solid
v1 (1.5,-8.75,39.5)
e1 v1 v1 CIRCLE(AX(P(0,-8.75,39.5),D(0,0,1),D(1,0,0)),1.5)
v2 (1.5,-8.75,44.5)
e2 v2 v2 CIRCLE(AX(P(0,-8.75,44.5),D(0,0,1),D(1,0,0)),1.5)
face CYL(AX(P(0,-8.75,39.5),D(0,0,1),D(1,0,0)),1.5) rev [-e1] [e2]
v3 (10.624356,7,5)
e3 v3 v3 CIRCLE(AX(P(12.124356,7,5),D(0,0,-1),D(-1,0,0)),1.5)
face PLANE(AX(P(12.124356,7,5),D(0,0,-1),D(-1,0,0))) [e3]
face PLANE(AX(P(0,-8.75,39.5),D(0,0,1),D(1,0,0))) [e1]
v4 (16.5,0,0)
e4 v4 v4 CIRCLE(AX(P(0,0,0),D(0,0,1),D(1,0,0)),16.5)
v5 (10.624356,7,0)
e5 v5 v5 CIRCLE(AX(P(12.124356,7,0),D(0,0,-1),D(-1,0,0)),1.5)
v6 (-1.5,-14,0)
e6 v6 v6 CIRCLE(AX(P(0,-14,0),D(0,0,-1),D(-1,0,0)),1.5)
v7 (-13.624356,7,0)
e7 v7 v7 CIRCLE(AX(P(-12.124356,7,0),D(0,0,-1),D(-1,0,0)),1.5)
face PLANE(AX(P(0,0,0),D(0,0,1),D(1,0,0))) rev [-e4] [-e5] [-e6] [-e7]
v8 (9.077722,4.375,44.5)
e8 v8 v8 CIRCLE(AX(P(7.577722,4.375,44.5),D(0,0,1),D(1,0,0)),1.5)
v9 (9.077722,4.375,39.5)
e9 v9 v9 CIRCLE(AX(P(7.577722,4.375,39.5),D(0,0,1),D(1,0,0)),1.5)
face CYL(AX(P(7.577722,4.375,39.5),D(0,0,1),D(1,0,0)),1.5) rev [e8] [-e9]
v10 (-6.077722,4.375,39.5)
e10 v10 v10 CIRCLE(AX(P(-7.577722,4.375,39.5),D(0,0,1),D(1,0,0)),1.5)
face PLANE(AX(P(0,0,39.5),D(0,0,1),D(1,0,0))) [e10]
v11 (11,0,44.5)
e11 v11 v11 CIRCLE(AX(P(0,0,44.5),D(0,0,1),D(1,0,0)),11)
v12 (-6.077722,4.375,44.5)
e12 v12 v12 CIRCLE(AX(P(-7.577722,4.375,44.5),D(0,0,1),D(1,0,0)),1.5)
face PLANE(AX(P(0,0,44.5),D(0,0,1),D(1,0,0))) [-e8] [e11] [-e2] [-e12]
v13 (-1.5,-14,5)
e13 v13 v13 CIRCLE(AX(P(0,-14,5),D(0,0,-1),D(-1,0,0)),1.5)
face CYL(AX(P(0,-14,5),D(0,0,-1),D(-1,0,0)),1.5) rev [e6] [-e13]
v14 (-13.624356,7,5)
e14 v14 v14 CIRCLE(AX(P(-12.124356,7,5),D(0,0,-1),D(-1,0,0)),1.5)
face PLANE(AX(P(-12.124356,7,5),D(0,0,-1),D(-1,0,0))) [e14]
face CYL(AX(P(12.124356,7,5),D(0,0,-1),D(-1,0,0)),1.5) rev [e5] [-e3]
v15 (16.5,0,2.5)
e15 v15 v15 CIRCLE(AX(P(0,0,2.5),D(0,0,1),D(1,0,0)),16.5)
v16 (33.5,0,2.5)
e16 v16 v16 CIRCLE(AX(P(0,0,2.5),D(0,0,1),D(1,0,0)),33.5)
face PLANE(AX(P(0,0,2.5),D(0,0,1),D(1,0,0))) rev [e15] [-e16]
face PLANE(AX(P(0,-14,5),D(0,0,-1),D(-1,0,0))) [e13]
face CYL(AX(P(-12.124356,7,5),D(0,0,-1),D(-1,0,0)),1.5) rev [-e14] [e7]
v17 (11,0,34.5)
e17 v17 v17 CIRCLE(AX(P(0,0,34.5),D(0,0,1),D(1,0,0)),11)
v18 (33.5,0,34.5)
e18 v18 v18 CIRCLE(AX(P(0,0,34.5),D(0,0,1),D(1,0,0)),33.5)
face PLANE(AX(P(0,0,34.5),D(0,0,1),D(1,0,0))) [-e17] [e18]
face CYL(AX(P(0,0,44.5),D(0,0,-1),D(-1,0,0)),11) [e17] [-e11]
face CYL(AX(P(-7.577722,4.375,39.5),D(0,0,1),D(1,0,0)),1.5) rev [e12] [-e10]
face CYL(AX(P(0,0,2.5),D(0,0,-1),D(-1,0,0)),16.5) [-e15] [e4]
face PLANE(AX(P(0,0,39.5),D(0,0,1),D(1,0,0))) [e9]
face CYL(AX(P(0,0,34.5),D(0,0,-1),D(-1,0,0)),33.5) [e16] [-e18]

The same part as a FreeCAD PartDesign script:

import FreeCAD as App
import Part
import Sketcher

V = App.Vector

doc = App.newDocument("Part")
params = doc.addObject("Spreadsheet::Sheet", "Params")
for row, (alias, value) in enumerate([
    ("sketch1_diameter", "33 mm"),
    ("pad1_length", "2.5 mm"),
    ("sketch2_diameter", "67 mm"),
    ("pad2_length", "32 mm"),
    ("sketch3_diameter", "22 mm"),
    ("pad3_length", "10 mm"),
    ("sketch4_diameter", "3 mm"),
    ("pocket1_length", "5 mm"),
    ("sketch5_diameter", "3 mm"),
    ("pocket2_length", "5 mm"),
], start=1):
    params.set(f"A{row}", alias)
    params.set(f"B{row}", "=" + value)
    params.setAlias(f"B{row}", alias)

body = doc.addObject("PartDesign::Body", "Body")

# Sketch on XY plane
sketch1 = body.newObject("Sketcher::SketchObject", "Sketch")
sketch1.AttachmentSupport = (doc.getObject("XY_Plane"), [""])
sketch1.MapMode = "FlatFace"
sketch1.addGeometry(Part.Circle(V(0, 0, 0), V(0, 0, 1), 16), False)
sketch1.addConstraint([
    Sketcher.Constraint("Coincident", 0, 3, -1, 1),
    Sketcher.Constraint("Diameter", 0, 33.0),
])
sketch1.setExpression("Constraints[1]", "Params.sketch1_diameter")
pad1 = body.newObject("PartDesign::Pad", "Pad")
pad1.Profile = sketch1
pad1.setExpression("Length", "Params.pad1_length")

# Sketch on XY plane
sketch2 = body.newObject("Sketcher::SketchObject", "Sketch001")
sketch2.AttachmentSupport = (doc.getObject("XY_Plane"), [""])
sketch2.MapMode = "FlatFace"
sketch2.AttachmentOffset = App.Placement(V(0, 0, 2.5), App.Rotation())
sketch2.addGeometry(Part.Circle(V(0, 0, 0), V(0, 0, 1), 34), False)
sketch2.addConstraint([
    Sketcher.Constraint("Coincident", 0, 3, -1, 1),
    Sketcher.Constraint("Diameter", 0, 67.0),
])
sketch2.setExpression("Constraints[1]", "Params.sketch2_diameter")
pad2 = body.newObject("PartDesign::Pad", "Pad001")
pad2.Profile = sketch2
pad2.setExpression("Length", "Params.pad2_length")

# Sketch on XY plane
sketch3 = body.newObject("Sketcher::SketchObject", "Sketch002")
sketch3.AttachmentSupport = (doc.getObject("XY_Plane"), [""])
sketch3.MapMode = "FlatFace"
sketch3.AttachmentOffset = App.Placement(V(0, 0, 34.5), App.Rotation())
sketch3.addGeometry(Part.Circle(V(0, 0, 0), V(0, 0, 1), 11), False)
sketch3.addConstraint([
    Sketcher.Constraint("Coincident", 0, 3, -1, 1),
    Sketcher.Constraint("Diameter", 0, 22.0),
])
sketch3.setExpression("Constraints[1]", "Params.sketch3_diameter")
pad3 = body.newObject("PartDesign::Pad", "Pad002")
pad3.Profile = sketch3
pad3.setExpression("Length", "Params.pad3_length")

# Sketch on XY plane
sketch4 = body.newObject("Sketcher::SketchObject", "Sketch003")
sketch4.AttachmentSupport = (doc.getObject("XY_Plane"), [""])
sketch4.MapMode = "FlatFace"
sketch4.AttachmentOffset = App.Placement(V(0, 0, 44.5), App.Rotation())
sketch4.addGeometry([
    Part.Circle(V(7.6, 4.4, 0), V(0, 0, 1), 1.5),
    Part.Circle(V(-7.6, 4.4, 0), V(0, 0, 1), 1.5),
    Part.Circle(V(0, -8.8, 0), V(0, 0, 1), 1.5),
], False)
sketch4.addConstraint([
    Sketcher.Constraint("Equal", 0, 1),
    Sketcher.Constraint("Equal", 1, 2),
    Sketcher.Constraint("Symmetric", 0, 3, 1, 3, -2),
    Sketcher.Constraint("PointOnObject", 2, 3, -2),
    Sketcher.Constraint("Diameter", 0, 3.0),
    Sketcher.Constraint("DistanceY", 2, 3, -1, 1, 8.75),
    Sketcher.Constraint("DistanceY", -1, 1, 0, 3, 4.375),
    Sketcher.Constraint("DistanceX", -1, 1, 0, 3, 7.577722),
])
sketch4.setExpression("Constraints[4]", "Params.sketch4_diameter")
pocket1 = body.newObject("PartDesign::Pocket", "Pocket")
pocket1.Profile = sketch4
pocket1.setExpression("Length", "Params.pocket1_length")

# Sketch on XY plane
sketch5 = body.newObject("Sketcher::SketchObject", "Sketch004")
sketch5.AttachmentSupport = (doc.getObject("XY_Plane"), [""])
sketch5.MapMode = "FlatFace"
sketch5.addGeometry([
    Part.Circle(V(0, -14, 0), V(0, 0, 1), 1.5),
    Part.Circle(V(12.1, 7, 0), V(0, 0, 1), 1.5),
    Part.Circle(V(-12.1, 7, 0), V(0, 0, 1), 1.5),
], False)
sketch5.addConstraint([
    Sketcher.Constraint("Equal", 0, 1),
    Sketcher.Constraint("Equal", 1, 2),
    Sketcher.Constraint("Symmetric", 1, 3, 2, 3, -2),
    Sketcher.Constraint("PointOnObject", 0, 3, -2),
    Sketcher.Constraint("Diameter", 0, 3.0),
    Sketcher.Constraint("DistanceY", 0, 3, -1, 1, 14.0),
    Sketcher.Constraint("DistanceY", -1, 1, 1, 3, 7.0),
    Sketcher.Constraint("DistanceX", 2, 3, 1, 3, 24.248711),
])
sketch5.setExpression("Constraints[4]", "Params.sketch5_diameter")
pocket2 = body.newObject("PartDesign::Pocket", "Pocket001")
pocket2.Profile = sketch5
pocket2.setExpression("Length", "Params.pocket2_length")
pocket2.Reversed = True

doc.recompute()
